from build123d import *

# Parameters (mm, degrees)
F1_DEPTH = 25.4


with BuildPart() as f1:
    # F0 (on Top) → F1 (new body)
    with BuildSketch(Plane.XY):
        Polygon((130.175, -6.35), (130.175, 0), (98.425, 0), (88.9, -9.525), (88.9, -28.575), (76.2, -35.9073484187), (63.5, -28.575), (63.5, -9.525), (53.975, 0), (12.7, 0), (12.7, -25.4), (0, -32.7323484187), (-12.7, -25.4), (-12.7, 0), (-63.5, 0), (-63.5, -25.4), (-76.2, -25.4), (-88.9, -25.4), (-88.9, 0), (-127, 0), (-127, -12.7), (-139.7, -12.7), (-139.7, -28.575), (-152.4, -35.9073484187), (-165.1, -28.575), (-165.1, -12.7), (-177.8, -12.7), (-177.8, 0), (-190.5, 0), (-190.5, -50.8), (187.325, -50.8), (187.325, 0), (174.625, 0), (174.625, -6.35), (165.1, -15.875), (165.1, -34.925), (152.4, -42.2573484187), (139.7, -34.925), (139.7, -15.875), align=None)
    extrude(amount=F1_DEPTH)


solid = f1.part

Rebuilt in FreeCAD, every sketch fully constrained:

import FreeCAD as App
import Part
import Sketcher
Q = App.Units.Quantity

doc = App.newDocument("Part")
body = doc.addObject("PartDesign::Body", "Body")

sketch1 = body.newObject("Sketcher::SketchObject", "Sketch")
sketch1.AttachmentSupport = (doc.getObject("XY_Plane"), [""])
sketch1.MapMode = "FlatFace"
sketch1.addGeometry(Part.LineSegment(App.Vector(130, -6, 0), App.Vector(130, 0, 0)), False)
sketch1.addGeometry(Part.LineSegment(App.Vector(130, 0, 0), App.Vector(98, 0, 0)), False)
sketch1.addGeometry(Part.LineSegment(App.Vector(98, 0, 0), App.Vector(89, -10, 0)), False)
sketch1.addGeometry(Part.LineSegment(App.Vector(89, -10, 0), App.Vector(89, -29, 0)), False)
sketch1.addGeometry(Part.LineSegment(App.Vector(89, -29, 0), App.Vector(76, -36, 0)), False)
sketch1.addGeometry(Part.LineSegment(App.Vector(76, -36, 0), App.Vector(64, -29, 0)), False)
sketch1.addGeometry(Part.LineSegment(App.Vector(64, -29, 0), App.Vector(64, -10, 0)), False)
sketch1.addGeometry(Part.LineSegment(App.Vector(64, -10, 0), App.Vector(54, 0, 0)), False)
sketch1.addGeometry(Part.LineSegment(App.Vector(54, 0, 0), App.Vector(13, 0, 0)), False)
sketch1.addGeometry(Part.LineSegment(App.Vector(13, 0, 0), App.Vector(13, -25, 0)), False)
sketch1.addGeometry(Part.LineSegment(App.Vector(13, -25, 0), App.Vector(0, -33, 0)), False)
sketch1.addGeometry(Part.LineSegment(App.Vector(0, -33, 0), App.Vector(-13, -25, 0)), False)
sketch1.addGeometry(Part.LineSegment(App.Vector(-13, -25, 0), App.Vector(-13, 0, 0)), False)
sketch1.addGeometry(Part.LineSegment(App.Vector(-13, 0, 0), App.Vector(-64, 0, 0)), False)
sketch1.addGeometry(Part.LineSegment(App.Vector(-64, 0, 0), App.Vector(-64, -25, 0)), False)
sketch1.addGeometry(Part.LineSegment(App.Vector(-64, -25, 0), App.Vector(-89, -25, 0)), False)
sketch1.addGeometry(Part.LineSegment(App.Vector(-89, -25, 0), App.Vector(-89, 0, 0)), False)
sketch1.addGeometry(Part.LineSegment(App.Vector(-89, 0, 0), App.Vector(-127, 0, 0)), False)
sketch1.addGeometry(Part.LineSegment(App.Vector(-127, 0, 0), App.Vector(-127, -13, 0)), False)
sketch1.addGeometry(Part.LineSegment(App.Vector(-127, -13, 0), App.Vector(-140, -13, 0)), False)
sketch1.addGeometry(Part.LineSegment(App.Vector(-140, -13, 0), App.Vector(-140, -29, 0)), False)
sketch1.addGeometry(Part.LineSegment(App.Vector(-140, -29, 0), App.Vector(-152, -36, 0)), False)
sketch1.addGeometry(Part.LineSegment(App.Vector(-152, -36, 0), App.Vector(-165, -29, 0)), False)
sketch1.addGeometry(Part.LineSegment(App.Vector(-165, -29, 0), App.Vector(-165, -13, 0)), False)
sketch1.addGeometry(Part.LineSegment(App.Vector(-165, -13, 0), App.Vector(-178, -13, 0)), False)
sketch1.addGeometry(Part.LineSegment(App.Vector(-178, -13, 0), App.Vector(-178, 0, 0)), False)
sketch1.addGeometry(Part.LineSegment(App.Vector(-178, 0, 0), App.Vector(-190, 0, 0)), False)
sketch1.addGeometry(Part.LineSegment(App.Vector(-190, 0, 0), App.Vector(-190, -51, 0)), False)
sketch1.addGeometry(Part.LineSegment(App.Vector(-190, -51, 0), App.Vector(187, -51, 0)), False)
sketch1.addGeometry(Part.LineSegment(App.Vector(187, -51, 0), App.Vector(187, 0, 0)), False)
sketch1.addGeometry(Part.LineSegment(App.Vector(187, 0, 0), App.Vector(175, 0, 0)), False)
sketch1.addGeometry(Part.LineSegment(App.Vector(175, 0, 0), App.Vector(175, -6, 0)), False)
sketch1.addGeometry(Part.LineSegment(App.Vector(175, -6, 0), App.Vector(165, -16, 0)), False)
sketch1.addGeometry(Part.LineSegment(App.Vector(165, -16, 0), App.Vector(165, -35, 0)), False)
sketch1.addGeometry(Part.LineSegment(App.Vector(165, -35, 0), App.Vector(152, -42, 0)), False)
sketch1.addGeometry(Part.LineSegment(App.Vector(152, -42, 0), App.Vector(140, -35, 0)), False)
sketch1.addGeometry(Part.LineSegment(App.Vector(140, -35, 0), App.Vector(140, -16, 0)), False)
sketch1.addGeometry(Part.LineSegment(App.Vector(140, -16, 0), App.Vector(130, -6, 0)), False)
sketch1.addConstraint(Sketcher.Constraint("Coincident", 0, 2, 1, 1))
sketch1.addConstraint(Sketcher.Constraint("Coincident", 1, 2, 2, 1))
sketch1.addConstraint(Sketcher.Constraint("Coincident", 2, 2, 3, 1))
sketch1.addConstraint(Sketcher.Constraint("Coincident", 3, 2, 4, 1))
sketch1.addConstraint(Sketcher.Constraint("Coincident", 4, 2, 5, 1))
sketch1.addConstraint(Sketcher.Constraint("Coincident", 5, 2, 6, 1))
sketch1.addConstraint(Sketcher.Constraint("Coincident", 6, 2, 7, 1))
sketch1.addConstraint(Sketcher.Constraint("Coincident", 7, 2, 8, 1))
sketch1.addConstraint(Sketcher.Constraint("Coincident", 8, 2, 9, 1))
sketch1.addConstraint(Sketcher.Constraint("Coincident", 9, 2, 10, 1))
sketch1.addConstraint(Sketcher.Constraint("Coincident", 10, 2, 11, 1))
sketch1.addConstraint(Sketcher.Constraint("Coincident", 11, 2, 12, 1))
sketch1.addConstraint(Sketcher.Constraint("Coincident", 12, 2, 13, 1))
sketch1.addConstraint(Sketcher.Constraint("Coincident", 13, 2, 14, 1))
sketch1.addConstraint(Sketcher.Constraint("Coincident", 14, 2, 15, 1))
sketch1.addConstraint(Sketcher.Constraint("Coincident", 15, 2, 16, 1))
sketch1.addConstraint(Sketcher.Constraint("Coincident", 16, 2, 17, 1))
sketch1.addConstraint(Sketcher.Constraint("Coincident", 17, 2, 18, 1))
sketch1.addConstraint(Sketcher.Constraint("Coincident", 18, 2, 19, 1))
sketch1.addConstraint(Sketcher.Constraint("Coincident", 19, 2, 20, 1))
sketch1.addConstraint(Sketcher.Constraint("Coincident", 20, 2, 21, 1))
sketch1.addConstraint(Sketcher.Constraint("Coincident", 21, 2, 22, 1))
sketch1.addConstraint(Sketcher.Constraint("Coincident", 22, 2, 23, 1))
sketch1.addConstraint(Sketcher.Constraint("Coincident", 23, 2, 24, 1))
sketch1.addConstraint(Sketcher.Constraint("Coincident", 24, 2, 25, 1))
sketch1.addConstraint(Sketcher.Constraint("Coincident", 25, 2, 26, 1))
sketch1.addConstraint(Sketcher.Constraint("Coincident", 26, 2, 27, 1))
sketch1.addConstraint(Sketcher.Constraint("Coincident", 27, 2, 28, 1))
sketch1.addConstraint(Sketcher.Constraint("Coincident", 28, 2, 29, 1))
sketch1.addConstraint(Sketcher.Constraint("Coincident", 29, 2, 30, 1))
sketch1.addConstraint(Sketcher.Constraint("Coincident", 30, 2, 31, 1))
sketch1.addConstraint(Sketcher.Constraint("Coincident", 31, 2, 32, 1))
sketch1.addConstraint(Sketcher.Constraint("Coincident", 32, 2, 33, 1))
sketch1.addConstraint(Sketcher.Constraint("Coincident", 33, 2, 34, 1))
sketch1.addConstraint(Sketcher.Constraint("Coincident", 34, 2, 35, 1))
sketch1.addConstraint(Sketcher.Constraint("Coincident", 35, 2, 36, 1))
sketch1.addConstraint(Sketcher.Constraint("Coincident", 36, 2, 37, 1))
sketch1.addConstraint(Sketcher.Constraint("Coincident", 37, 2, 0, 1))
sketch1.addConstraint(Sketcher.Constraint("Vertical", 0))
sketch1.addConstraint(Sketcher.Constraint("Horizontal", 1))
sketch1.addConstraint(Sketcher.Constraint("Vertical", 3))
sketch1.addConstraint(Sketcher.Constraint("Vertical", 6))
sketch1.addConstraint(Sketcher.Constraint("Horizontal", 8))
sketch1.addConstraint(Sketcher.Constraint("Vertical", 9))
sketch1.addConstraint(Sketcher.Constraint("Vertical", 12))
sketch1.addConstraint(Sketcher.Constraint("Horizontal", 13))
sketch1.addConstraint(Sketcher.Constraint("Vertical", 14))
sketch1.addConstraint(Sketcher.Constraint("Horizontal", 15))
sketch1.addConstraint(Sketcher.Constraint("Vertical", 16))
sketch1.addConstraint(Sketcher.Constraint("Horizontal", 17))
sketch1.addConstraint(Sketcher.Constraint("Vertical", 18))
sketch1.addConstraint(Sketcher.Constraint("Horizontal", 19))
sketch1.addConstraint(Sketcher.Constraint("Vertical", 20))
sketch1.addConstraint(Sketcher.Constraint("Vertical", 23))
sketch1.addConstraint(Sketcher.Constraint("Horizontal", 24))
sketch1.addConstraint(Sketcher.Constraint("Vertical", 25))
sketch1.addConstraint(Sketcher.Constraint("Horizontal", 26))
sketch1.addConstraint(Sketcher.Constraint("Vertical", 27))
sketch1.addConstraint(Sketcher.Constraint("Horizontal", 28))
sketch1.addConstraint(Sketcher.Constraint("Vertical", 29))
sketch1.addConstraint(Sketcher.Constraint("Horizontal", 30))
sketch1.addConstraint(Sketcher.Constraint("Vertical", 31))
sketch1.addConstraint(Sketcher.Constraint("Vertical", 33))
sketch1.addConstraint(Sketcher.Constraint("Vertical", 36))
sketch1.addConstraint(Sketcher.Constraint("Symmetric", 8, 2, 12, 2, -1, 1))
sketch1.addConstraint(Sketcher.Constraint("PointOnObject", 0, 2, -1))
sketch1.addConstraint(Sketcher.Constraint("PointOnObject", 7, 2, -1))
sketch1.addConstraint(Sketcher.Constraint("PointOnObject", 10, 2, -2))
sketch1.addConstraint(Sketcher.Constraint("PointOnObject", 16, 2, -1))
sketch1.addConstraint(Sketcher.Constraint("PointOnObject", 25, 2, -1))
sketch1.addConstraint(Sketcher.Constraint("PointOnObject", 29, 2, -1))
sketch1.addConstraint(Sketcher.Constraint("Perpendicular", 2, 7))
sketch1.addConstraint(Sketcher.Constraint("Parallel", 4, 10))
sketch1.addConstraint(Sketcher.Constraint("Parallel", 5, 11))
sketch1.addConstraint(Sketcher.Constraint("Parallel", 10, 21))
sketch1.addConstraint(Sketcher.Constraint("Parallel", 11, 22))
sketch1.addConstraint(Sketcher.Constraint("Perpendicular", 7, 32))
sketch1.addConstraint(Sketcher.Constraint("Parallel", 21, 34))
sketch1.addConstraint(Sketcher.Constraint("Parallel", 22, 35))
sketch1.addConstraint(Sketcher.Constraint("Perpendicular", 32, 37))
sketch1.addConstraint(Sketcher.Constraint("Horizontal", 3, 2, 5, 2))
sketch1.addConstraint(Sketcher.Constraint("Horizontal", 2, 2, 6, 2))
sketch1.addConstraint(Sketcher.Constraint("Horizontal", 9, 2, 11, 2))
sketch1.addConstraint(Sketcher.Constraint("Horizontal", 11, 2, 14, 2))
sketch1.addConstraint(Sketcher.Constraint("Horizontal", 5, 2, 20, 2))
sketch1.addConstraint(Sketcher.Constraint("Horizontal", 4, 2, 21, 2))
sketch1.addConstraint(Sketcher.Constraint("Horizontal", 20, 2, 22, 2))
sketch1.addConstraint(Sketcher.Constraint("Horizontal", 19, 2, 23, 2))
sketch1.addConstraint(Sketcher.Constraint("Horizontal", 33, 2, 35, 2))
sketch1.addConstraint(Sketcher.Constraint("Horizontal", 32, 2, 36, 2))
sketch1.addConstraint(Sketcher.Constraint("Horizontal", 31, 2, 37, 2))
sketch1.addConstraint(Sketcher.Constraint("Equal", 19, 24))
sketch1.addConstraint(Sketcher.Constraint("Equal", 24, 26))
sketch1.addConstraint(Sketcher.Constraint("Equal", 26, 30))
sketch1.addConstraint(Sketcher.Constraint("Equal", 15, 9))
sketch1.addConstraint(Sketcher.Constraint("Equal", 30, 18))
sketch1.addConstraint(Sketcher.Constraint("Equal", 13, 27))
sketch1.addConstraint(Sketcher.Constraint("Equal", 6, 33))
sketch1.addConstraint(Sketcher.Constraint("Equal", 2, 7))
sketch1.addConstraint(Sketcher.Constraint("Equal", 5, 10))
sketch1.addConstraint(Sketcher.Constraint("Equal", 7, 32))
sketch1.addConstraint(Sketcher.Constraint("Equal", 22, 34))
sketch1.addConstraint(Sketcher.Constraint("DistanceX", 13, 2, 13, 1, Q("2 in")))
sketch1.addConstraint(Sketcher.Constraint("DistanceX", 15, 2, 15, 1, Q("1 in")))
sketch1.addConstraint(Sketcher.Constraint("DistanceX", 17, 2, 17, 1, Q("1.5 in")))
sketch1.addConstraint(Sketcher.Constraint("DistanceX", 19, 2, 19, 1, Q("0.5 in")))
sketch1.addConstraint(Sketcher.Constraint("DistanceX", -1, 1, 4, 2, Q("3 in")))
sketch1.addConstraint(Sketcher.Constraint("DistanceX", 17, 2, -1, 1, Q("5 in")))
sketch1.addConstraint(Sketcher.Constraint("DistanceX", -1, 1, 34, 2, Q("6 in")))
sketch1.addConstraint(Sketcher.Constraint("Angle", 4, Q("-150 deg")))
sketch1.addConstraint(Sketcher.Constraint("DistanceX", 1, 2, 1, 1, Q("1.25 in")))
sketch1.addConstraint(Sketcher.Constraint("DistanceY", 0, 1, 0, 2, Q("0.25 in")))
sketch1.addConstraint(Sketcher.Constraint("DistanceY", 3, 2, 3, 1, Q("0.75 in")))
pad1 = body.newObject("PartDesign::Pad", "Pad")
pad1.Profile = sketch1
pad1.Length = Q("1 in")

doc.recompute()
